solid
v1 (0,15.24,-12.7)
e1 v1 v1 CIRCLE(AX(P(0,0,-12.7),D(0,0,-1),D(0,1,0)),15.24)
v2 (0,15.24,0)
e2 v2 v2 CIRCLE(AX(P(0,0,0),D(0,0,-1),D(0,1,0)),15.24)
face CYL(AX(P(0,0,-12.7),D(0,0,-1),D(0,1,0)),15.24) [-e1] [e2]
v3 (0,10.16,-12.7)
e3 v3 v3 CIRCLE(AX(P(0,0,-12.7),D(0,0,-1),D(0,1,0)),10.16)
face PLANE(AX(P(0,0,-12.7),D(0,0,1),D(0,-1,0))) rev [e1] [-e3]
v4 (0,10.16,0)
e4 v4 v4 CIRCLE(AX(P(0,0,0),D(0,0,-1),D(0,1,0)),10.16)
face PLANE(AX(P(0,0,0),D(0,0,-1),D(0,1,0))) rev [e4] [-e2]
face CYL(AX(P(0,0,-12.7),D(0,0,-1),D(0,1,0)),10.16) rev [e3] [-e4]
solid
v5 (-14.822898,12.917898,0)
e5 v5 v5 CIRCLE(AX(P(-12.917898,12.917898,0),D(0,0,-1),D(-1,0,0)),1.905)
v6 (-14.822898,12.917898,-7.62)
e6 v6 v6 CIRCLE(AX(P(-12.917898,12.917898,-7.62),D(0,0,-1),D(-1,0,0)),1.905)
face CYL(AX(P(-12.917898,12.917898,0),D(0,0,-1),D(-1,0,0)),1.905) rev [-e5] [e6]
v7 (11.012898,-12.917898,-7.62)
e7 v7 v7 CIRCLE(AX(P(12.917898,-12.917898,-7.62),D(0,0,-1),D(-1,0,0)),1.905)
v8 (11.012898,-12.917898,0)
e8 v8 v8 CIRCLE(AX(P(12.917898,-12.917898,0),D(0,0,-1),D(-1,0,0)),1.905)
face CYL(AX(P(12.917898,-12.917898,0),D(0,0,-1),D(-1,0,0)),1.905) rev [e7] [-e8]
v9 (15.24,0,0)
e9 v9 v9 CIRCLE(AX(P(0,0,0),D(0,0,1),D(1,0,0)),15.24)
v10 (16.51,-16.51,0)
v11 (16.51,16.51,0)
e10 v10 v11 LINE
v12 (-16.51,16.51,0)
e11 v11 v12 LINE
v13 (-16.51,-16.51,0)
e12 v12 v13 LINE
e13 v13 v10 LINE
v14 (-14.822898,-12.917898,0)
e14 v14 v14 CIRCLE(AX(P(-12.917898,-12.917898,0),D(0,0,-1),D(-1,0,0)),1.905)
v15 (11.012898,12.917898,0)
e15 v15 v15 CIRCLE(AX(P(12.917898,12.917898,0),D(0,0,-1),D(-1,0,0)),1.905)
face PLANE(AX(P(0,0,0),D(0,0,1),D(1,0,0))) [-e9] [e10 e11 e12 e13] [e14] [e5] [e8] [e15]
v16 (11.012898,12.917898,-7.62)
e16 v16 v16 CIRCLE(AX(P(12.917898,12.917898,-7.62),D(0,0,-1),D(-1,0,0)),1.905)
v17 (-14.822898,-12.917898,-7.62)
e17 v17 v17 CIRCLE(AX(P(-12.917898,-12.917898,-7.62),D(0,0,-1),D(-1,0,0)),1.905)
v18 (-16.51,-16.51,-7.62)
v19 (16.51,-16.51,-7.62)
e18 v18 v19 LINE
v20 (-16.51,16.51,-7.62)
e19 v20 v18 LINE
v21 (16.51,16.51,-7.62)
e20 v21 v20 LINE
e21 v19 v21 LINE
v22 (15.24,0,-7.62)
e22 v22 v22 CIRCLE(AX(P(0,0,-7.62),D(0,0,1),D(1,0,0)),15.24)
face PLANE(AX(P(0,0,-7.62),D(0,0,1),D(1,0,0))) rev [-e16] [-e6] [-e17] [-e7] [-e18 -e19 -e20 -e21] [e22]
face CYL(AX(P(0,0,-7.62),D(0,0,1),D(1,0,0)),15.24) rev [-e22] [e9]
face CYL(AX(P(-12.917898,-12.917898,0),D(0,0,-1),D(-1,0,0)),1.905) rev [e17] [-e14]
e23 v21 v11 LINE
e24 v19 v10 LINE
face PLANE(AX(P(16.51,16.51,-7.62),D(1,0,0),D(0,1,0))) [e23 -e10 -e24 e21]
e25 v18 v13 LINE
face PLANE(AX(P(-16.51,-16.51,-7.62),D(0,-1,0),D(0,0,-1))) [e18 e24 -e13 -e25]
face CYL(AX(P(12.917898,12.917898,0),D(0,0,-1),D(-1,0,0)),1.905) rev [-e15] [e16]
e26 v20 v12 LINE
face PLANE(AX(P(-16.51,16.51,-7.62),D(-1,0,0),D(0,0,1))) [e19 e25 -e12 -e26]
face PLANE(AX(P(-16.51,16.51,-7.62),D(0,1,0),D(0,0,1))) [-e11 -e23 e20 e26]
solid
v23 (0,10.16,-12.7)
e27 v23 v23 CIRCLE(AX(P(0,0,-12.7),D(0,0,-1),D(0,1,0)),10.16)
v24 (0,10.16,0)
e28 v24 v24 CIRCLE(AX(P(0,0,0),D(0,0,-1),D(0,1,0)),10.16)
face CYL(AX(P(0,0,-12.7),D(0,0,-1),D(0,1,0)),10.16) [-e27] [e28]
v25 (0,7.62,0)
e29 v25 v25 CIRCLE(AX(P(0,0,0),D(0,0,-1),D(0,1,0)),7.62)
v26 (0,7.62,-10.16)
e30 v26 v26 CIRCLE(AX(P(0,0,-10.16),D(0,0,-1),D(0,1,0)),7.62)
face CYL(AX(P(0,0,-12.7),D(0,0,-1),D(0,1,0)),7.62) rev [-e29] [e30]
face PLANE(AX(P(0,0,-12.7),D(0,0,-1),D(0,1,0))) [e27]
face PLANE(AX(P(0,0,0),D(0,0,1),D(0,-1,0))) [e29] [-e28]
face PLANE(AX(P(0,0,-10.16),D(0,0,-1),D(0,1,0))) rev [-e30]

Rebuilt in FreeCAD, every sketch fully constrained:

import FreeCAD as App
import Part
import Sketcher
from FreeCAD import Vector
Q = App.Units.Quantity


def add_polygon(sketch, points):
    """Adds a closed chain of lines whose ends are joined by coincident constraints."""
    first, n = sketch.GeometryCount, len(points)
    for a, b in zip(points, points[1:] + points[:1]):
        sketch.addGeometry(Part.LineSegment(App.Vector(*a, 0), App.Vector(*b, 0)), False)
    for i in range(n):
        sketch.addConstraint(Sketcher.Constraint("Coincident", first + i, 2, first + (i + 1) % n, 1))

doc = App.newDocument("Part")
body = doc.addObject("PartDesign::Body", "Body")

sketch1 = body.newObject("Sketcher::SketchObject", "Sketch")
sketch1.AttachmentSupport = (doc.getObject("YZ_Plane"), [""])
sketch1.MapMode = "FlatFace"
add_polygon(sketch1, [(15, 0), (10, 0), (10, -13), (15, -13)])
sketch1.addConstraint(Sketcher.Constraint("Horizontal", 0))
sketch1.addConstraint(Sketcher.Constraint("Vertical", 1))
sketch1.addConstraint(Sketcher.Constraint("Horizontal", 2))
sketch1.addConstraint(Sketcher.Constraint("Vertical", 3))
sketch1.addConstraint(Sketcher.Constraint("PointOnObject", 0, 2, -1))
sketch1.addConstraint(Sketcher.Constraint("DistanceX", 0, 2, 0, 1, Q("0.2 in")))
sketch1.addConstraint(Sketcher.Constraint("DistanceY", 1, 2, 1, 1, Q("0.5 in")))
sketch1.addConstraint(Sketcher.Constraint("DistanceX", -1, 1, 0, 2, Q("0.4 in")))
revolution = body.newObject("PartDesign::Revolution", "Revolution")
revolution.Profile = sketch1
revolution.ReferenceAxis = (sketch1, ["V_Axis"])
revolution.Angle = 360
body2 = doc.addObject("PartDesign::Body", "Body001")

sketch2 = body2.newObject("Sketcher::SketchObject", "Sketch001")
sketch2.AttachmentSupport = (doc.getObject("YZ_Plane001"), [""])
sketch2.MapMode = "FlatFace"
add_polygon(sketch2, [(10.2, 0), (7.6, 0), (7.6, -12.7), (10.2, -12.7)])
sketch2.addConstraint(Sketcher.Constraint("Horizontal", 0))
sketch2.addConstraint(Sketcher.Constraint("Vertical", 1))
sketch2.addConstraint(Sketcher.Constraint("Horizontal", 2))
sketch2.addConstraint(Sketcher.Constraint("Vertical", 3))
sketch2.addConstraint(Sketcher.Constraint("PointOnObject", 0, 2, -1))
sketch2.addConstraint(Sketcher.Constraint("DistanceX", 0, 2, 0, 1, Q("0.1 in")))
sketch2.addConstraint(Sketcher.Constraint("DistanceY", 1, 2, 1, 1, Q("0.5 in")))
sketch2.addConstraint(Sketcher.Constraint("DistanceX", -1, 1, 0, 2, Q("0.3 in")))
revolution2 = body2.newObject("PartDesign::Revolution", "Revolution001")
revolution2.Profile = sketch2
revolution2.ReferenceAxis = (sketch2, ["V_Axis"])
revolution2.Angle = 360
body3 = doc.addObject("PartDesign::Body", "Body002")

sketch3 = body3.newObject("Sketcher::SketchObject", "Sketch002")
sketch3.AttachmentSupport = (doc.getObject("XY_Plane002"), [""])
sketch3.MapMode = "FlatFace"
add_polygon(sketch3, [(-17, 17), (-17, -17), (17, -17), (17, 17)])
sketch3.addGeometry(Part.Circle(Vector(0, 0, 0), Vector(0, 0, 1), 15), False)
sketch3.addConstraint(Sketcher.Constraint("Vertical", 0))
sketch3.addConstraint(Sketcher.Constraint("Horizontal", 1))
sketch3.addConstraint(Sketcher.Constraint("Vertical", 2))
sketch3.addConstraint(Sketcher.Constraint("Horizontal", 3))
sketch3.addConstraint(Sketcher.Constraint("Coincident", 4, 3, -1, 1))
sketch3.addConstraint(Sketcher.Constraint("Symmetric", 0, 2, 2, 2, -1, 1))
sketch3.addConstraint(Sketcher.Constraint("Equal", 3, 0))
sketch3.addConstraint(Sketcher.Constraint("Diameter", 4, Q("1.2 in")))
sketch3.addConstraint(Sketcher.Constraint("DistanceX", 1, 1, 1, 2, Q("1.3 in")))
pad1 = body3.newObject("PartDesign::Pad", "Pad")
pad1.Profile = sketch3
pad1.Length = Q("0.3 in")
pad1.Reversed = True

sketch4 = body3.newObject("Sketcher::SketchObject", "Sketch003")
sketch4.AttachmentSupport = (doc.getObject("XY_Plane002"), [""])
sketch4.MapMode = "FlatFace"
sketch4.AttachmentOffset = App.Placement(Vector(0, 0, -0.3 * 25.4), App.Rotation())
sketch4.addGeometry(Part.Circle(Vector(12.9, 12.9, 0), Vector(0, 0, 1), 1.9), False)
sketch4.addGeometry(Part.Circle(Vector(-12.9, 12.9, 0), Vector(0, 0, 1), 1.9), False)
sketch4.addGeometry(Part.Circle(Vector(-12.9, -12.9, 0), Vector(0, 0, 1), 1.9), False)
sketch4.addGeometry(Part.Circle(Vector(12.9, -12.9, 0), Vector(0, 0, 1), 1.9), False)
sketch4.addConstraint(Sketcher.Constraint("Equal", 0, 1))
sketch4.addConstraint(Sketcher.Constraint("Equal", 1, 2))
sketch4.addConstraint(Sketcher.Constraint("Equal", 2, 3))
sketch4.addConstraint(Sketcher.Constraint("Symmetric", 0, 3, 2, 3, -1, 1))
sketch4.addConstraint(Sketcher.Constraint("Symmetric", 1, 3, 3, 3, -1, 1))
sketch4.addConstraint(Sketcher.Constraint("Symmetric", 0, 3, 1, 3, -2))
sketch4.addConstraint(Sketcher.Constraint("Diameter", 0, Q("0.15 in")))
sketch4.addConstraint(Sketcher.Constraint("DistanceX", -1, 1, 0, 3, Q("12.917898 mm")))
sketch4.addConstraint(Sketcher.Constraint("DistanceY", -1, 1, 0, 3, Q("12.917898 mm")))
pocket1 = body3.newObject("PartDesign::Pocket", "Pocket")
pocket1.Profile = sketch4
pocket1.Type = "ThroughAll"
pocket1.Reversed = True
body4 = doc.addObject("PartDesign::Body", "Body003")

sketch5 = body4.newObject("Sketcher::SketchObject", "Sketch004")
sketch5.AttachmentSupport = (doc.getObject("XY_Plane003"), [""])
sketch5.MapMode = "FlatFace"
sketch5.AttachmentOffset = App.Placement(Vector(0, 0, -0.5 * 25.4), App.Rotation())
sketch5.addGeometry(Part.Circle(Vector(0, 0, 0), Vector(0, 0, 1), 10), False)
sketch5.addConstraint(Sketcher.Constraint("Coincident", 0, 3, -1, 1))
sketch5.addConstraint(Sketcher.Constraint("Diameter", 0, Q("0.8 in")))
pad2 = body4.newObject("PartDesign::Pad", "Pad001")
pad2.Profile = sketch5
pad2.Length = Q("0.1 in")
doc.recompute()

boolean = body2.newObject("PartDesign::Boolean", "Boolean")
boolean.Type = "Fuse"
boolean.addObjects([body4])

doc.recompute()
